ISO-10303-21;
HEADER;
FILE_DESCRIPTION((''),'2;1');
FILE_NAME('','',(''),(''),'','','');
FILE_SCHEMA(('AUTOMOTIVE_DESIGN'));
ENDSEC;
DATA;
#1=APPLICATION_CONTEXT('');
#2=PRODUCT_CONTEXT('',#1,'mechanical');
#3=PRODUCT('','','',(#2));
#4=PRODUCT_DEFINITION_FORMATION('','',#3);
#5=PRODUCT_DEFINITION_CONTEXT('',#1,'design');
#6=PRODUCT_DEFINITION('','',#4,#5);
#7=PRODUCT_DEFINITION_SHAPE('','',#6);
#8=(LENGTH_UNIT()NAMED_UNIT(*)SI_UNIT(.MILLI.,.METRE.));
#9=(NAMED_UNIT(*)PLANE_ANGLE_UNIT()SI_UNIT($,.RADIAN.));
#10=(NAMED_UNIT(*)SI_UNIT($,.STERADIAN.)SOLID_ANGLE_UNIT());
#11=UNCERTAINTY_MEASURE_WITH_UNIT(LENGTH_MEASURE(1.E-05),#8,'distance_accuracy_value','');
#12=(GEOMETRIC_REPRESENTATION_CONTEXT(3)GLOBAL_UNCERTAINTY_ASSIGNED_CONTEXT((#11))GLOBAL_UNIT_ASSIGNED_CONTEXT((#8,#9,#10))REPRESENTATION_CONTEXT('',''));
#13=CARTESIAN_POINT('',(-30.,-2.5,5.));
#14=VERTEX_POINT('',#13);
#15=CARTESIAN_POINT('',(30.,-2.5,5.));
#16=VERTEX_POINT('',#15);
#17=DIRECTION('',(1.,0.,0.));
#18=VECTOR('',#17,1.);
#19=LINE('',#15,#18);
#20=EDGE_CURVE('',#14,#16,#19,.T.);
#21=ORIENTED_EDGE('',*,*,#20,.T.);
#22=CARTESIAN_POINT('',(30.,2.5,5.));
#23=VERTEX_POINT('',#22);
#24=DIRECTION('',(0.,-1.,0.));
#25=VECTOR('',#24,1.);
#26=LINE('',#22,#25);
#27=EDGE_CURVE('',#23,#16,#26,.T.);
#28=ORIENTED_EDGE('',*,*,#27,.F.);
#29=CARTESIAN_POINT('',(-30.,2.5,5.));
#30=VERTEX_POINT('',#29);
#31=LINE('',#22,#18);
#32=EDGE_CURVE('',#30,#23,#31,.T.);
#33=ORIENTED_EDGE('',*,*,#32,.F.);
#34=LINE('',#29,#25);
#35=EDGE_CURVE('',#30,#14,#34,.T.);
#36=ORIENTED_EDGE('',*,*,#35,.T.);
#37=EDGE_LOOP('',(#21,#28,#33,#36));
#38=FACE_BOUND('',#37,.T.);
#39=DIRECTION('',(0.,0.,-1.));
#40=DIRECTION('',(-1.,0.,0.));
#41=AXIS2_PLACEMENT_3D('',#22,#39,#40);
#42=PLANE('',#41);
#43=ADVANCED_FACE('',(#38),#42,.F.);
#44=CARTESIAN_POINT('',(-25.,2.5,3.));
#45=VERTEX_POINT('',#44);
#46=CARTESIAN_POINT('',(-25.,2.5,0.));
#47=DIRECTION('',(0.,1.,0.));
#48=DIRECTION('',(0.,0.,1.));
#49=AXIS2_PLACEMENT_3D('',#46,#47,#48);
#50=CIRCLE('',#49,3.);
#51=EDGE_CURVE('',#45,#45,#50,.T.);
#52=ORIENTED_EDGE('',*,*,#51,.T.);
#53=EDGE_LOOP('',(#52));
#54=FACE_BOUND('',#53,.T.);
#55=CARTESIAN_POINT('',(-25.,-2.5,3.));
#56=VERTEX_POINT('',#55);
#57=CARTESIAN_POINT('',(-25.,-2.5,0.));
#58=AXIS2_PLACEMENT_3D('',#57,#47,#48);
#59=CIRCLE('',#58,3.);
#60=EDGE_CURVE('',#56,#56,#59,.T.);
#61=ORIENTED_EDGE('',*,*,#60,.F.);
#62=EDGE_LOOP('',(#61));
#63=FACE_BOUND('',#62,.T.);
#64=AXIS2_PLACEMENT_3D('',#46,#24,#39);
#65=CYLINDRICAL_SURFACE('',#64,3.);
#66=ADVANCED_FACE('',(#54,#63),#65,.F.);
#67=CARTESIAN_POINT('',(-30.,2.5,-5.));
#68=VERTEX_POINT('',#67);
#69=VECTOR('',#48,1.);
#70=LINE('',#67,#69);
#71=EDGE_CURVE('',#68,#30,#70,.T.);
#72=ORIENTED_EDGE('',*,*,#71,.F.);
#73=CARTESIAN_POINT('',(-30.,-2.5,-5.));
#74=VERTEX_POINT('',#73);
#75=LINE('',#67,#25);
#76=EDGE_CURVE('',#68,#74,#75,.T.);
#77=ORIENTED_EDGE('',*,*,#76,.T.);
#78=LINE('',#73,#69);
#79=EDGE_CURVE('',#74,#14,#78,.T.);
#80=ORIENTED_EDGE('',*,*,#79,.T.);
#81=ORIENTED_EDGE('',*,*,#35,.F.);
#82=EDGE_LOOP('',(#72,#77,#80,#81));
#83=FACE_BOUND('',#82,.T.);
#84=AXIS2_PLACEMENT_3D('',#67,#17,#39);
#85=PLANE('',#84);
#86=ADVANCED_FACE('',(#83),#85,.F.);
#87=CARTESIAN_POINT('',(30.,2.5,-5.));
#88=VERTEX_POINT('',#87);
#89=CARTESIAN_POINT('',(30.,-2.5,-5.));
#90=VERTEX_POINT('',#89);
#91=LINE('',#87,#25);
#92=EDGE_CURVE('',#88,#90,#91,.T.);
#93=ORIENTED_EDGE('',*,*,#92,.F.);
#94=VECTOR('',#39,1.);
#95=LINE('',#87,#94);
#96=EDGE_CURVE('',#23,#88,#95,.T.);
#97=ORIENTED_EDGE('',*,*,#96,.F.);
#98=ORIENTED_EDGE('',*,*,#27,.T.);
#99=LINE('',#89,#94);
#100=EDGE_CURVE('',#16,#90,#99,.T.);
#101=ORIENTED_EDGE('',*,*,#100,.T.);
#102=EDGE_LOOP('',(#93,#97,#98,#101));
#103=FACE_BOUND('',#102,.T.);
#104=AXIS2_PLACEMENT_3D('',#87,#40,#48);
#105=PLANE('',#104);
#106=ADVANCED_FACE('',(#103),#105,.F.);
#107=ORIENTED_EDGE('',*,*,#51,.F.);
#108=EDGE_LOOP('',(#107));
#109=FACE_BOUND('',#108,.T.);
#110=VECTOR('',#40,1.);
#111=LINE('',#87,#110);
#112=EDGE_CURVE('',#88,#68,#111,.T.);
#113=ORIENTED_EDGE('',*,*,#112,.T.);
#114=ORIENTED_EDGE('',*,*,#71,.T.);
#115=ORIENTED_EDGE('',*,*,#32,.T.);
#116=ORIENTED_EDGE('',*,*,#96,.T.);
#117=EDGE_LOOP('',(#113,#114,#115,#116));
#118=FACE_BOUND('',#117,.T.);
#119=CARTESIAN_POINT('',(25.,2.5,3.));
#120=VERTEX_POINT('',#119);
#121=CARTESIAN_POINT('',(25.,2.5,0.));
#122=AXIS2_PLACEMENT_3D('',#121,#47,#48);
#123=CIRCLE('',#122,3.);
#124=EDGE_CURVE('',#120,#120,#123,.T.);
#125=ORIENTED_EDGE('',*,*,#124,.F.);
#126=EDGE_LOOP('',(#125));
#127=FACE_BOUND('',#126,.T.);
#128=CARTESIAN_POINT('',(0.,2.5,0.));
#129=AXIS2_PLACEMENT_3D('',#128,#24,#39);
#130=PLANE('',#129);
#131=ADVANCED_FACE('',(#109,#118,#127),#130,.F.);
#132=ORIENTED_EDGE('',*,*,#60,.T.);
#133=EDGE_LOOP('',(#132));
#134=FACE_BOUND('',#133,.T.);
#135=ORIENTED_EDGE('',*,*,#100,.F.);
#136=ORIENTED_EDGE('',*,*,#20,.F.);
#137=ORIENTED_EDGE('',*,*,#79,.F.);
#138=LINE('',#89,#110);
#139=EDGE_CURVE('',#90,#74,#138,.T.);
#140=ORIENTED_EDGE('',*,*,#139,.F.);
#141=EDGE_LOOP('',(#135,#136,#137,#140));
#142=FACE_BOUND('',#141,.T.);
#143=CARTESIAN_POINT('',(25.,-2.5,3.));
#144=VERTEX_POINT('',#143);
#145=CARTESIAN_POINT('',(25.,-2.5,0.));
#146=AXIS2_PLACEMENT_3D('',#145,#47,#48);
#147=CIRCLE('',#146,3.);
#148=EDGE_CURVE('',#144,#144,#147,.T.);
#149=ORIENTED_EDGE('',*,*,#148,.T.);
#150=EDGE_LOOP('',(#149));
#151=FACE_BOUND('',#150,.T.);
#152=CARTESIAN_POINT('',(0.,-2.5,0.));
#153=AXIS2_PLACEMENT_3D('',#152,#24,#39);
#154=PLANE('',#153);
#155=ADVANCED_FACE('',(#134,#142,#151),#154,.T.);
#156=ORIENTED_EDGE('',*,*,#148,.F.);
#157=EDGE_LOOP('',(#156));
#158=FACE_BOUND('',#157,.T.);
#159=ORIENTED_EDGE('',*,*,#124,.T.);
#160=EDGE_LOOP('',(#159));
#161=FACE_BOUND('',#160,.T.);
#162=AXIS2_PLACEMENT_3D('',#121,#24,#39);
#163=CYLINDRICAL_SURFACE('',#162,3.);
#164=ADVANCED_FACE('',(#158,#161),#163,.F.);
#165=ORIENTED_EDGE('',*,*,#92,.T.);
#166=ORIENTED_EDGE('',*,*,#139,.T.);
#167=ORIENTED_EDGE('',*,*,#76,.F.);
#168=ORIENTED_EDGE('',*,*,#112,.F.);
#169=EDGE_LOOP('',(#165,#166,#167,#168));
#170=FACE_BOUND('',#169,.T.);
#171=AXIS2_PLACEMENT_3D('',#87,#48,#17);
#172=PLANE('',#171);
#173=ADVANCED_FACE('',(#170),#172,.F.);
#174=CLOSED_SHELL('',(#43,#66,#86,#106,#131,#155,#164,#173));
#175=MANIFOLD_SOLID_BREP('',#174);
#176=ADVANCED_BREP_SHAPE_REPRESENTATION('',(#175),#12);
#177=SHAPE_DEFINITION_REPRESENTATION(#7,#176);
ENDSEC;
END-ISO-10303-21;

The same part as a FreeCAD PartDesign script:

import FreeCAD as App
import Part
import Sketcher

V = App.Vector
Q = App.Units.Quantity


def add_polygon(sketch, points):
    """Adds a closed chain of lines whose ends are joined by coincident constraints."""
    first, n = sketch.GeometryCount, len(points)
    for a, b in zip(points, points[1:] + points[:1]):
        sketch.addGeometry(Part.LineSegment(App.Vector(*a, 0), App.Vector(*b, 0)), False)
    for i in range(n):
        sketch.addConstraint(Sketcher.Constraint("Coincident", first + i, 2, first + (i + 1) % n, 1))

doc = App.newDocument("Part")
params = doc.addObject("Spreadsheet::Sheet", "Params")
for row, (alias, value) in enumerate([
    ("sketch1_diameter", "6 mm"),
    ("sketch1_width", "60 mm"),
    ("sketch1_height", "10 mm"),
    ("pad1_length", "5 mm"),
], start=1):
    params.set(f"A{row}", alias)
    params.set(f"B{row}", "=" + value)
    params.setAlias(f"B{row}", alias)

body = doc.addObject("PartDesign::Body", "Body")

# Sketch on XZ plane
sketch1 = doc.addObject("Sketcher::SketchObject", "Sketch")
body.addObject(sketch1)
sketch1.AttachmentSupport = (doc.XZ_Plane, [""])
sketch1.MapMode = "FlatFace"
add_polygon(sketch1, [(-30, -5), (-30, 5), (30, 5), (30, -5)])  # lines 0-3
sketch1.addGeometry(Part.Circle(V(-25, 0, 0), V(0, 0, 1), 3), False)  # 4
sketch1.addGeometry(Part.Circle(V(25, 0, 0), V(0, 0, 1), 3), False)  # 5
sketch1.addConstraint([
    Sketcher.Constraint("Vertical", 0),
    Sketcher.Constraint("Horizontal", 1),
    Sketcher.Constraint("Vertical", 2),
    Sketcher.Constraint("Horizontal", 3),
    Sketcher.Constraint("Equal", 4, 5),
    Sketcher.Constraint("Symmetric", 4, 3, 5, 3, -1, 1),
    Sketcher.Constraint("Symmetric", 0, 2, 2, 2, -1, 1),
    Sketcher.Constraint("PointOnObject", 4, 3, -1),
    Sketcher.Constraint("Diameter", 4, Q("6 mm")),
    Sketcher.Constraint("DistanceX", 1, 1, 1, 2, Q("60 mm")),
    Sketcher.Constraint("DistanceY", 0, 1, 0, 2, Q("10 mm")),
    Sketcher.Constraint("DistanceX", 4, 3, -1, 1, Q("25 mm")),
])
sketch1.setExpression("Constraints[12]", "Params.sketch1_diameter")
sketch1.setExpression("Constraints[13]", "Params.sketch1_width")
sketch1.setExpression("Constraints[14]", "Params.sketch1_height")
pad1 = doc.addObject("PartDesign::Pad", "Pad")
body.addObject(pad1)
pad1.Profile = sketch1
pad1.setExpression("Length", "Params.pad1_length")
pad1.Midplane = True

doc.recompute()
